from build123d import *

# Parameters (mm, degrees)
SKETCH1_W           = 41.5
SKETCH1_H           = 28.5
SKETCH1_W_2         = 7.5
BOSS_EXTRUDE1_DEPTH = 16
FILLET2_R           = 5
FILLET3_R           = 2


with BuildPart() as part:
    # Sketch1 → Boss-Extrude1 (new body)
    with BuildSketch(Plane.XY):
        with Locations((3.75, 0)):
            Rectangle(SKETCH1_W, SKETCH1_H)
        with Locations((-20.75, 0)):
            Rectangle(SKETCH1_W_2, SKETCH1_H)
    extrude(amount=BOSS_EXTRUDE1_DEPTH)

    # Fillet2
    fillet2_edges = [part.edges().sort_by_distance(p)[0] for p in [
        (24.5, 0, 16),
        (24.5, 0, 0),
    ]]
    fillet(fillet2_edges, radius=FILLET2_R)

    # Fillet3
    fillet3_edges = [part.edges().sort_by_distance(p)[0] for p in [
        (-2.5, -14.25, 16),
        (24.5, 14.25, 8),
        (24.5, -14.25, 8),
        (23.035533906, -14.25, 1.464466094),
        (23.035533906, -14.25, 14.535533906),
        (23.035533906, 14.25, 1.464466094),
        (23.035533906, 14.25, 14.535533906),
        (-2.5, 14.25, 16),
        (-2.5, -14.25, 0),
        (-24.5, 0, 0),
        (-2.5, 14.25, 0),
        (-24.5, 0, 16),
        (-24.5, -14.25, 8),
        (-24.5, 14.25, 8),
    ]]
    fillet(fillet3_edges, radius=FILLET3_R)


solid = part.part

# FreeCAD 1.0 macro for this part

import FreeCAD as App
import Part
import Sketcher
Q = App.Units.Quantity


def edges_at(feature, points):
    """Names of the edges that pass closest to the given points."""
    edges = feature.Shape.Edges
    near = lambda p: min(range(len(edges)), key=lambda i: edges[i].distToShape(Part.Vertex(*p))[0])
    return sorted({f"Edge{near(p) + 1}" for p in points})


def add_polygon(sketch, points):
    """Adds a closed chain of lines whose ends are joined by coincident constraints."""
    first, n = sketch.GeometryCount, len(points)
    for a, b in zip(points, points[1:] + points[:1]):
        sketch.addGeometry(Part.LineSegment(App.Vector(*a, 0), App.Vector(*b, 0)), False)
    for i in range(n):
        sketch.addConstraint(Sketcher.Constraint("Coincident", first + i, 2, first + (i + 1) % n, 1))

doc = App.newDocument("Part")
body = doc.addObject("PartDesign::Body", "Body")

sketch1 = body.newObject("Sketcher::SketchObject", "Sketch")
sketch1.AttachmentSupport = (doc.getObject("XY_Plane"), [""])
sketch1.MapMode = "FlatFace"
add_polygon(sketch1, [(24, -14), (24, 14), (-24, 14), (-24, -14)])
sketch1.addConstraint(Sketcher.Constraint("Vertical", 0))
sketch1.addConstraint(Sketcher.Constraint("Horizontal", 1))
sketch1.addConstraint(Sketcher.Constraint("Vertical", 2))
sketch1.addConstraint(Sketcher.Constraint("Horizontal", 3))
sketch1.addConstraint(Sketcher.Constraint("Symmetric", 0, 2, 2, 2, -1, 1))
sketch1.addConstraint(Sketcher.Constraint("DistanceX", 1, 2, 1, 1, Q("49 mm")))
sketch1.addConstraint(Sketcher.Constraint("DistanceY", 0, 1, 0, 2, Q("28.5 mm")))
pad1 = body.newObject("PartDesign::Pad", "Pad")
pad1.Profile = sketch1
pad1.Length = 16
doc.recompute()

fillet = body.newObject("PartDesign::Fillet", "Fillet")
fillet.Base = (pad1, edges_at(pad1, [(24.5, 0, 16), (24.5, 0, 0)]))
fillet.Radius = 5
doc.recompute()

fillet2 = body.newObject("PartDesign::Fillet", "Fillet001")
fillet2.Base = (fillet, ["Edge1"])
fillet2.UseAllEdges = True
fillet2.Radius = 2

doc.recompute()
